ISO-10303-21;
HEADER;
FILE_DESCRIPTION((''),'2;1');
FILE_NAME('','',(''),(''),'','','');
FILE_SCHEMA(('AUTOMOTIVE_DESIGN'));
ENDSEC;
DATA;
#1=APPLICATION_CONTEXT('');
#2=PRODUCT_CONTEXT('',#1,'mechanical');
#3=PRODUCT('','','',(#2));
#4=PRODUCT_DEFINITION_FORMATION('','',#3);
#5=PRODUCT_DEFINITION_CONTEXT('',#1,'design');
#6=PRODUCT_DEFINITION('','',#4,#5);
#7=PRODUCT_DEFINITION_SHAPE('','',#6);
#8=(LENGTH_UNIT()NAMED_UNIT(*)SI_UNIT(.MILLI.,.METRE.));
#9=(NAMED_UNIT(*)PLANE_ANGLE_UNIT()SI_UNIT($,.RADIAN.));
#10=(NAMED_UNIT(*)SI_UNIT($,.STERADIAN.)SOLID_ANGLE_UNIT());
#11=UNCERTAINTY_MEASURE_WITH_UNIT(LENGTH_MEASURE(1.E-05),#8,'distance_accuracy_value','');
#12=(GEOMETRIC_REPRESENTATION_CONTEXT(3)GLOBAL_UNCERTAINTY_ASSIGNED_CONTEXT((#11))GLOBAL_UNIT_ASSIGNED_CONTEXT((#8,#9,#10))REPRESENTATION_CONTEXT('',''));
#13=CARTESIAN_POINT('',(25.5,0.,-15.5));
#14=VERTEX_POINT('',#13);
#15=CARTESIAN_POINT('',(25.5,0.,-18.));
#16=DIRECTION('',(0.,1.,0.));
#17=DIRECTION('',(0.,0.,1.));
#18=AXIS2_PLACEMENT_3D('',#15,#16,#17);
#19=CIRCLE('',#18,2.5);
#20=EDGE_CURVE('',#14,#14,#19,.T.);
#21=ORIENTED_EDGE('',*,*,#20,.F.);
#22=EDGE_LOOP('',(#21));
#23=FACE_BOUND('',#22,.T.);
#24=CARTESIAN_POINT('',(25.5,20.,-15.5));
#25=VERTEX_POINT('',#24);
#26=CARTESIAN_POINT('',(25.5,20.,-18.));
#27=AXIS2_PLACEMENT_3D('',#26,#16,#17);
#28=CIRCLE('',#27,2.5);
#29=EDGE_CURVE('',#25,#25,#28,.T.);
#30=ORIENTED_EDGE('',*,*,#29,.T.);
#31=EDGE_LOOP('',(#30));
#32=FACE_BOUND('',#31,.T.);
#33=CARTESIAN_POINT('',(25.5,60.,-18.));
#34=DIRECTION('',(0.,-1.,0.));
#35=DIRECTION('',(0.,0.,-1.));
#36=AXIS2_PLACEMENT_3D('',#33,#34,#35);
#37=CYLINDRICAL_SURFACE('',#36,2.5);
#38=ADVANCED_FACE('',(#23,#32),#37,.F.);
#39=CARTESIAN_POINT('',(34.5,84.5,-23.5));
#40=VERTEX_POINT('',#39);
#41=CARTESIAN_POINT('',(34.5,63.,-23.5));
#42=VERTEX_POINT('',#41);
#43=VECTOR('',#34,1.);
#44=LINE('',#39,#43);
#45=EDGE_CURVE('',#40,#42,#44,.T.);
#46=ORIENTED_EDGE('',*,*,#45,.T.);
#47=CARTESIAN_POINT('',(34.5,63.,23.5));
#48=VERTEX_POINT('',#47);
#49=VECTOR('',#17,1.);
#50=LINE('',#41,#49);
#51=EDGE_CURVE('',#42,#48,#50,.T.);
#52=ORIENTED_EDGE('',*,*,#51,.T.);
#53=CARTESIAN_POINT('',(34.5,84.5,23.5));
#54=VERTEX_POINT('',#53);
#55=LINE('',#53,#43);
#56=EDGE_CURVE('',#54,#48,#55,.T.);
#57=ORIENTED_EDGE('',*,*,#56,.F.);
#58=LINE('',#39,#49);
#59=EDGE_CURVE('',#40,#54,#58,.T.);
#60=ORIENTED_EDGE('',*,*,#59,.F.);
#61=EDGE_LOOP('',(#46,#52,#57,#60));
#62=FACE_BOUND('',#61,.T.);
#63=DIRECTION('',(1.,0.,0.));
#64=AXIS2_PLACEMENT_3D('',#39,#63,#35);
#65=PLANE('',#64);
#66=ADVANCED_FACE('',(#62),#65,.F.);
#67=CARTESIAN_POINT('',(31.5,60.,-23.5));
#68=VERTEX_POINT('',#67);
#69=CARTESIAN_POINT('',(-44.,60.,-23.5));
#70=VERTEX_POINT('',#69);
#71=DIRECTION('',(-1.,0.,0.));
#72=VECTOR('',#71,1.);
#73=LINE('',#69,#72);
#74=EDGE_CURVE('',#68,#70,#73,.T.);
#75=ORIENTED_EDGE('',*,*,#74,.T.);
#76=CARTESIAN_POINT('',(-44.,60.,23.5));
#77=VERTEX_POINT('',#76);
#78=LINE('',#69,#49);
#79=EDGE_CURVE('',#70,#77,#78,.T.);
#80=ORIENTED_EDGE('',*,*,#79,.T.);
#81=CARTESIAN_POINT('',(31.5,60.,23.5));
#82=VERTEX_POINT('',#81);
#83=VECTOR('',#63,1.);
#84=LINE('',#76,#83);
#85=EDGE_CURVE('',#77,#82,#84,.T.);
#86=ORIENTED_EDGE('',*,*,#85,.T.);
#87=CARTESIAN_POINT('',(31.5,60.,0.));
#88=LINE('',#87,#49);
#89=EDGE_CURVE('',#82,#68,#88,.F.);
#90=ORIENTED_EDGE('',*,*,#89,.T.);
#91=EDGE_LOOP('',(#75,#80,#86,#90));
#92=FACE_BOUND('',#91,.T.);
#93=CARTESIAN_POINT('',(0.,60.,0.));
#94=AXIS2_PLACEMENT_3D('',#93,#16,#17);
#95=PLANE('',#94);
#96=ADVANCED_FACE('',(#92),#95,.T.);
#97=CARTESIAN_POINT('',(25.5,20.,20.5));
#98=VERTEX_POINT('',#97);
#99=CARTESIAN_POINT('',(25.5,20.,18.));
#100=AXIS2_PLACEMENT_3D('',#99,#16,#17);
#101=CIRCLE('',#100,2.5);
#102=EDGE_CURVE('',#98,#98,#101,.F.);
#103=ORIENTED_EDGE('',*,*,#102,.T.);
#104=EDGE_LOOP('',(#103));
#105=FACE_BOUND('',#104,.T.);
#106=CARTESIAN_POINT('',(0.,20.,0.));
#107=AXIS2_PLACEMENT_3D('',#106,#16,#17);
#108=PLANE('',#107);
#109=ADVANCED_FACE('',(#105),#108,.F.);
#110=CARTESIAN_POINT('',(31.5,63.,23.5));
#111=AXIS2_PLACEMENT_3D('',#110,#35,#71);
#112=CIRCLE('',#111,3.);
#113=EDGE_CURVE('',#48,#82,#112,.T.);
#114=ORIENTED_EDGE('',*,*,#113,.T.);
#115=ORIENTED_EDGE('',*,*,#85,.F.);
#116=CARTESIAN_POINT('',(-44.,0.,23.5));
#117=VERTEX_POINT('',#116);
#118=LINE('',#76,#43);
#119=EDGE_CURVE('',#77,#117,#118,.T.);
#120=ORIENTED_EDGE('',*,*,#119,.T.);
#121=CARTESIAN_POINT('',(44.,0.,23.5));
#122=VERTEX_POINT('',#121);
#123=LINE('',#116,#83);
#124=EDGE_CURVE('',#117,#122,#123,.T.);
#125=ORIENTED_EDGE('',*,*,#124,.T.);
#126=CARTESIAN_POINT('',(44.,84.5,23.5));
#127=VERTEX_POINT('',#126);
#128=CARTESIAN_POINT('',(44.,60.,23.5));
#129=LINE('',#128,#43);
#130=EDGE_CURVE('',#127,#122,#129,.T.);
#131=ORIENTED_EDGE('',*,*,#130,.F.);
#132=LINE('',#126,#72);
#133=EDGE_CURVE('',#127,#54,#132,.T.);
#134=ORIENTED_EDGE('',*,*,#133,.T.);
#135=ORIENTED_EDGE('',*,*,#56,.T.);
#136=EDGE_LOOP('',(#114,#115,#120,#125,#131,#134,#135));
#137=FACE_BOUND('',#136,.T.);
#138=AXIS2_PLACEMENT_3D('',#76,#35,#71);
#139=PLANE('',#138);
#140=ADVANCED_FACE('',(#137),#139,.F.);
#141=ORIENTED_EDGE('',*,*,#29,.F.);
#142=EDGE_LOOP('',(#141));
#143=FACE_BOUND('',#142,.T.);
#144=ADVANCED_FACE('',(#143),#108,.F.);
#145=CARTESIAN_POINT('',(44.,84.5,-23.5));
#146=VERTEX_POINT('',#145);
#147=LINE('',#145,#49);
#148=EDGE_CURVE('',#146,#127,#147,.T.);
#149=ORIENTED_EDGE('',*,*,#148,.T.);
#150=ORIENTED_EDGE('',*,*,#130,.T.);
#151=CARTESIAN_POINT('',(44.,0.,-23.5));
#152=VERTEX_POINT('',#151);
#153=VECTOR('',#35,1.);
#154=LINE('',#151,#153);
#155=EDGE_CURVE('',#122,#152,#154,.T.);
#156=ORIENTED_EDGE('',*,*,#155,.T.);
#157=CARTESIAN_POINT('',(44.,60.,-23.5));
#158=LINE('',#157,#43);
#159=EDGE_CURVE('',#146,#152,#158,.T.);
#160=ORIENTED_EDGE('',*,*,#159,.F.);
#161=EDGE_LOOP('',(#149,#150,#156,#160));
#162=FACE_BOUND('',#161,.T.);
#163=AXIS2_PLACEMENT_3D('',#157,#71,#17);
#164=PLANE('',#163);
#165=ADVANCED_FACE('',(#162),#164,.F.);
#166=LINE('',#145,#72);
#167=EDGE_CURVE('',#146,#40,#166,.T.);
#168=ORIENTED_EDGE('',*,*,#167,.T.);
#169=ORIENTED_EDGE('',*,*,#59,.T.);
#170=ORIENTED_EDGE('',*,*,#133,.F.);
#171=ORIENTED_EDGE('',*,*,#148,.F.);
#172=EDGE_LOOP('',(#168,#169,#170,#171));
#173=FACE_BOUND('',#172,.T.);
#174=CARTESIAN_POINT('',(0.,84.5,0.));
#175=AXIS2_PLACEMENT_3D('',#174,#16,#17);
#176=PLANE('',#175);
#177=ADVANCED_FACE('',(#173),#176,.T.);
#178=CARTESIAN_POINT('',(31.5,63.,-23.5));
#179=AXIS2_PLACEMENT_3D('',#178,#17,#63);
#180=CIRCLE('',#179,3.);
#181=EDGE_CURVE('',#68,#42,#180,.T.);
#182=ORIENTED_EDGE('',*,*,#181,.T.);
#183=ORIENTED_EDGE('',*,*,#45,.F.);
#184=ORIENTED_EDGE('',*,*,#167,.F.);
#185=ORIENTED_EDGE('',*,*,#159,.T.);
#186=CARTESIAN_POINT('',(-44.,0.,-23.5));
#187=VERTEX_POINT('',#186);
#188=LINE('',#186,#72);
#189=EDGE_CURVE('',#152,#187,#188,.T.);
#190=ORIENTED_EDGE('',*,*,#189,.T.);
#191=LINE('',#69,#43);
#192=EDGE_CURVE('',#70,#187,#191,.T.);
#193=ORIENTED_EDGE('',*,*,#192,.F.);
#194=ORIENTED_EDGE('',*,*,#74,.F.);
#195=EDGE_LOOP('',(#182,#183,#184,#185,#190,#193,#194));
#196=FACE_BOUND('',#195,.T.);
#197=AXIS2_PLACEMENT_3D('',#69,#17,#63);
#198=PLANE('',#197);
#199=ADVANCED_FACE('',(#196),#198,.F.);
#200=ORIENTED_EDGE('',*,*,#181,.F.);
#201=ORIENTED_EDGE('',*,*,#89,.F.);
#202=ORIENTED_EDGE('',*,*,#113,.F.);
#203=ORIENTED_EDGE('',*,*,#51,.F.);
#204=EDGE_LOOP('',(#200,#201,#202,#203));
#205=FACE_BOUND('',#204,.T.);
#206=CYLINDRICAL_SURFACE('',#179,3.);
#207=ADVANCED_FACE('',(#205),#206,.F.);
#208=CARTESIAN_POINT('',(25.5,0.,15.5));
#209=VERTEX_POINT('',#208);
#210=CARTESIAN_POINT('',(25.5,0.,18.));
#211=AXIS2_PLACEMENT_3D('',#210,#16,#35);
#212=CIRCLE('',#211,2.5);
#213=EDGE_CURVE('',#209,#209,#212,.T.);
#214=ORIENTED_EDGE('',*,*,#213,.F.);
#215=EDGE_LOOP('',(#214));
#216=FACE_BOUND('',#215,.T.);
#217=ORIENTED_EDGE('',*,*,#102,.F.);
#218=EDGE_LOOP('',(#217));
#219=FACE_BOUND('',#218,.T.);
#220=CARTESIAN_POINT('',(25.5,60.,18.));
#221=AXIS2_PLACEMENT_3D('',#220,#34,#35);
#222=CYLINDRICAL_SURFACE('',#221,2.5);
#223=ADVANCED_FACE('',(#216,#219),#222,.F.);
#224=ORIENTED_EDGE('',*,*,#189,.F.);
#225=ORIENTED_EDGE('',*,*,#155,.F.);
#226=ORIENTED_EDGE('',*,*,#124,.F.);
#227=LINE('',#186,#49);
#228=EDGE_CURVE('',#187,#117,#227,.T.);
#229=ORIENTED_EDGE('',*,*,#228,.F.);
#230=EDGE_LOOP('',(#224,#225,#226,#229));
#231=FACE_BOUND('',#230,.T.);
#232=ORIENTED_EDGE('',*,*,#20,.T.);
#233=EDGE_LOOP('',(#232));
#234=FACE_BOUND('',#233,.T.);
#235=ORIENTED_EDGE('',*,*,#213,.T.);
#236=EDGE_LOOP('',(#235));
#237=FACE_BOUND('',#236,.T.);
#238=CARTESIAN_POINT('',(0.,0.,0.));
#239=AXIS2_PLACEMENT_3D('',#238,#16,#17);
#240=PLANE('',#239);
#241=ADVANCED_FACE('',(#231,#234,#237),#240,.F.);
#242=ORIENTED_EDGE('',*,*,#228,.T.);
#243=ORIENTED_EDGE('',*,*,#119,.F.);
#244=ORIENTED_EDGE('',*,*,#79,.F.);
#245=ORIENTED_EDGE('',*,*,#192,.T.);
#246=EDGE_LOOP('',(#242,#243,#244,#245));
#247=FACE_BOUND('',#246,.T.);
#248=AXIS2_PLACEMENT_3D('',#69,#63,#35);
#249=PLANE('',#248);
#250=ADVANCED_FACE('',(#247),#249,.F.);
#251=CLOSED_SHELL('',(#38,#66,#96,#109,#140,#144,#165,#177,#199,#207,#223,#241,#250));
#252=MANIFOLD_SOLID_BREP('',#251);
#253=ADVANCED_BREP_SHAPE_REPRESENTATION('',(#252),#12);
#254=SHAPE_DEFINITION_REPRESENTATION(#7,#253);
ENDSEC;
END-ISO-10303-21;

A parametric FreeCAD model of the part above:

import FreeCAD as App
import Part
import Sketcher

V = App.Vector


def edges_at(feature, points):
    """Names of the edges that pass closest to the given points."""
    edges = feature.Shape.Edges
    near = lambda p: min(range(len(edges)), key=lambda i: edges[i].distToShape(Part.Vertex(*p))[0])
    return sorted({f"Edge{near(p) + 1}" for p in points})

doc = App.newDocument("Part")
body = doc.addObject("PartDesign::Body", "Body")

# Sketch on XZ plane
sketch1 = doc.addObject("Sketcher::SketchObject", "Sketch")
body.addObject(sketch1)
sketch1.AttachmentSupport = (doc.XZ_Plane, [""])
sketch1.MapMode = "FlatFace"
sketch1.addGeometry([
    Part.LineSegment(V(-44, -23.5, 0), V(-44, 23.5, 0)),  # 0
    Part.LineSegment(V(-44, 23.5, 0), V(44, 23.5, 0)),  # 1
    Part.LineSegment(V(44, 23.5, 0), V(44, -23.5, 0)),  # 2
    Part.LineSegment(V(44, -23.5, 0), V(-44, -23.5, 0)),  # 3
    Part.Circle(V(25.5, 18, 0), V(0, 0, 1), 2.5),  # 4
    Part.Circle(V(25.5, -18, 0), V(0, 0, 1), 2.5),  # 5
], False)
sketch1.addConstraint([
    Sketcher.Constraint("Coincident", 0, 2, 1, 1),
    Sketcher.Constraint("Coincident", 1, 2, 2, 1),
    Sketcher.Constraint("Coincident", 2, 2, 3, 1),
    Sketcher.Constraint("Coincident", 3, 2, 0, 1),
    Sketcher.Constraint("Vertical", 0),
    Sketcher.Constraint("Horizontal", 1),
    Sketcher.Constraint("Vertical", 2),
    Sketcher.Constraint("Horizontal", 3),
    Sketcher.Constraint("Equal", 4, 5),
    Sketcher.Constraint("Symmetric", 0, 2, 2, 2, -1, 1),
    Sketcher.Constraint("Symmetric", 4, 3, 5, 3, -1),
    Sketcher.Constraint("Diameter", 4, 5.0),
    Sketcher.Constraint("DistanceX", 1, 1, 1, 2, 88.0),
    Sketcher.Constraint("DistanceY", 0, 1, 0, 2, 47.0),
    Sketcher.Constraint("DistanceY", -1, 1, 4, 3, 18.0),
    Sketcher.Constraint("DistanceX", -1, 1, 4, 3, 25.5),
])
pad1 = doc.addObject("PartDesign::Pad", "Pad")
body.addObject(pad1)
pad1.Profile = sketch1
pad1.Length = 60
pad1.Reversed = True

# Sketch on XZ plane
sketch2 = doc.addObject("Sketcher::SketchObject", "Sketch001")
body.addObject(sketch2)
sketch2.AttachmentSupport = (doc.XZ_Plane, [""])
sketch2.MapMode = "FlatFace"
sketch2.AttachmentOffset = App.Placement(V(0, 0, -20), App.Rotation())
sketch2.addGeometry([
    Part.Circle(V(25.5, 18, 0), V(0, 0, 1), 2.5),
    Part.Circle(V(25.5, -18, 0), V(0, 0, 1), 2.5),
], False)
sketch2.addConstraint([
    Sketcher.Constraint("Equal", 0, 1),
    Sketcher.Constraint("Symmetric", 0, 3, 1, 3, -1),
    Sketcher.Constraint("Diameter", 0, 5.0),
    Sketcher.Constraint("DistanceY", -1, 1, 0, 3, 18.0),
    Sketcher.Constraint("DistanceX", -1, 1, 0, 3, 25.5),
])
pad2 = doc.addObject("PartDesign::Pad", "Pad001")
body.addObject(pad2)
pad2.Profile = sketch2
pad2.Length = 40
pad2.Reversed = True

# Sketch on XZ plane
sketch3 = doc.addObject("Sketcher::SketchObject", "Sketch002")
body.addObject(sketch3)
sketch3.AttachmentSupport = (doc.XZ_Plane, [""])
sketch3.MapMode = "FlatFace"
sketch3.AttachmentOffset = App.Placement(V(0, 0, -60), App.Rotation())
sketch3.addGeometry([
    Part.LineSegment(V(34, -24, 0), V(34, 24, 0)),
    Part.LineSegment(V(34, 24, 0), V(44, 24, 0)),
    Part.LineSegment(V(44, 24, 0), V(44, -24, 0)),
    Part.LineSegment(V(44, -24, 0), V(34, -24, 0)),
], False)
sketch3.addConstraint([
    Sketcher.Constraint("Coincident", 0, 2, 1, 1),
    Sketcher.Constraint("Coincident", 1, 2, 2, 1),
    Sketcher.Constraint("Coincident", 2, 2, 3, 1),
    Sketcher.Constraint("Coincident", 3, 2, 0, 1),
    Sketcher.Constraint("Vertical", 0),
    Sketcher.Constraint("Horizontal", 1),
    Sketcher.Constraint("Vertical", 2),
    Sketcher.Constraint("Horizontal", 3),
    Sketcher.Constraint("DistanceY", 0, 1, 0, 2, 47.0),
    Sketcher.Constraint("DistanceX", 1, 1, 1, 2, 9.5),
    Sketcher.Constraint("DistanceX", -1, 1, 1, 2, 44.0),
    Sketcher.Constraint("DistanceY", -1, 1, 0, 2, 23.5),
])
pad3 = doc.addObject("PartDesign::Pad", "Pad002")
body.addObject(pad3)
pad3.Profile = sketch3
pad3.Length = 24.5
pad3.Reversed = True
doc.recompute()

fillet = doc.addObject("PartDesign::Fillet", "Fillet")
body.addObject(fillet)
fillet.Base = (pad3, edges_at(pad3, [(34.5, 60, 0)]))
fillet.Radius = 3

doc.recompute()
